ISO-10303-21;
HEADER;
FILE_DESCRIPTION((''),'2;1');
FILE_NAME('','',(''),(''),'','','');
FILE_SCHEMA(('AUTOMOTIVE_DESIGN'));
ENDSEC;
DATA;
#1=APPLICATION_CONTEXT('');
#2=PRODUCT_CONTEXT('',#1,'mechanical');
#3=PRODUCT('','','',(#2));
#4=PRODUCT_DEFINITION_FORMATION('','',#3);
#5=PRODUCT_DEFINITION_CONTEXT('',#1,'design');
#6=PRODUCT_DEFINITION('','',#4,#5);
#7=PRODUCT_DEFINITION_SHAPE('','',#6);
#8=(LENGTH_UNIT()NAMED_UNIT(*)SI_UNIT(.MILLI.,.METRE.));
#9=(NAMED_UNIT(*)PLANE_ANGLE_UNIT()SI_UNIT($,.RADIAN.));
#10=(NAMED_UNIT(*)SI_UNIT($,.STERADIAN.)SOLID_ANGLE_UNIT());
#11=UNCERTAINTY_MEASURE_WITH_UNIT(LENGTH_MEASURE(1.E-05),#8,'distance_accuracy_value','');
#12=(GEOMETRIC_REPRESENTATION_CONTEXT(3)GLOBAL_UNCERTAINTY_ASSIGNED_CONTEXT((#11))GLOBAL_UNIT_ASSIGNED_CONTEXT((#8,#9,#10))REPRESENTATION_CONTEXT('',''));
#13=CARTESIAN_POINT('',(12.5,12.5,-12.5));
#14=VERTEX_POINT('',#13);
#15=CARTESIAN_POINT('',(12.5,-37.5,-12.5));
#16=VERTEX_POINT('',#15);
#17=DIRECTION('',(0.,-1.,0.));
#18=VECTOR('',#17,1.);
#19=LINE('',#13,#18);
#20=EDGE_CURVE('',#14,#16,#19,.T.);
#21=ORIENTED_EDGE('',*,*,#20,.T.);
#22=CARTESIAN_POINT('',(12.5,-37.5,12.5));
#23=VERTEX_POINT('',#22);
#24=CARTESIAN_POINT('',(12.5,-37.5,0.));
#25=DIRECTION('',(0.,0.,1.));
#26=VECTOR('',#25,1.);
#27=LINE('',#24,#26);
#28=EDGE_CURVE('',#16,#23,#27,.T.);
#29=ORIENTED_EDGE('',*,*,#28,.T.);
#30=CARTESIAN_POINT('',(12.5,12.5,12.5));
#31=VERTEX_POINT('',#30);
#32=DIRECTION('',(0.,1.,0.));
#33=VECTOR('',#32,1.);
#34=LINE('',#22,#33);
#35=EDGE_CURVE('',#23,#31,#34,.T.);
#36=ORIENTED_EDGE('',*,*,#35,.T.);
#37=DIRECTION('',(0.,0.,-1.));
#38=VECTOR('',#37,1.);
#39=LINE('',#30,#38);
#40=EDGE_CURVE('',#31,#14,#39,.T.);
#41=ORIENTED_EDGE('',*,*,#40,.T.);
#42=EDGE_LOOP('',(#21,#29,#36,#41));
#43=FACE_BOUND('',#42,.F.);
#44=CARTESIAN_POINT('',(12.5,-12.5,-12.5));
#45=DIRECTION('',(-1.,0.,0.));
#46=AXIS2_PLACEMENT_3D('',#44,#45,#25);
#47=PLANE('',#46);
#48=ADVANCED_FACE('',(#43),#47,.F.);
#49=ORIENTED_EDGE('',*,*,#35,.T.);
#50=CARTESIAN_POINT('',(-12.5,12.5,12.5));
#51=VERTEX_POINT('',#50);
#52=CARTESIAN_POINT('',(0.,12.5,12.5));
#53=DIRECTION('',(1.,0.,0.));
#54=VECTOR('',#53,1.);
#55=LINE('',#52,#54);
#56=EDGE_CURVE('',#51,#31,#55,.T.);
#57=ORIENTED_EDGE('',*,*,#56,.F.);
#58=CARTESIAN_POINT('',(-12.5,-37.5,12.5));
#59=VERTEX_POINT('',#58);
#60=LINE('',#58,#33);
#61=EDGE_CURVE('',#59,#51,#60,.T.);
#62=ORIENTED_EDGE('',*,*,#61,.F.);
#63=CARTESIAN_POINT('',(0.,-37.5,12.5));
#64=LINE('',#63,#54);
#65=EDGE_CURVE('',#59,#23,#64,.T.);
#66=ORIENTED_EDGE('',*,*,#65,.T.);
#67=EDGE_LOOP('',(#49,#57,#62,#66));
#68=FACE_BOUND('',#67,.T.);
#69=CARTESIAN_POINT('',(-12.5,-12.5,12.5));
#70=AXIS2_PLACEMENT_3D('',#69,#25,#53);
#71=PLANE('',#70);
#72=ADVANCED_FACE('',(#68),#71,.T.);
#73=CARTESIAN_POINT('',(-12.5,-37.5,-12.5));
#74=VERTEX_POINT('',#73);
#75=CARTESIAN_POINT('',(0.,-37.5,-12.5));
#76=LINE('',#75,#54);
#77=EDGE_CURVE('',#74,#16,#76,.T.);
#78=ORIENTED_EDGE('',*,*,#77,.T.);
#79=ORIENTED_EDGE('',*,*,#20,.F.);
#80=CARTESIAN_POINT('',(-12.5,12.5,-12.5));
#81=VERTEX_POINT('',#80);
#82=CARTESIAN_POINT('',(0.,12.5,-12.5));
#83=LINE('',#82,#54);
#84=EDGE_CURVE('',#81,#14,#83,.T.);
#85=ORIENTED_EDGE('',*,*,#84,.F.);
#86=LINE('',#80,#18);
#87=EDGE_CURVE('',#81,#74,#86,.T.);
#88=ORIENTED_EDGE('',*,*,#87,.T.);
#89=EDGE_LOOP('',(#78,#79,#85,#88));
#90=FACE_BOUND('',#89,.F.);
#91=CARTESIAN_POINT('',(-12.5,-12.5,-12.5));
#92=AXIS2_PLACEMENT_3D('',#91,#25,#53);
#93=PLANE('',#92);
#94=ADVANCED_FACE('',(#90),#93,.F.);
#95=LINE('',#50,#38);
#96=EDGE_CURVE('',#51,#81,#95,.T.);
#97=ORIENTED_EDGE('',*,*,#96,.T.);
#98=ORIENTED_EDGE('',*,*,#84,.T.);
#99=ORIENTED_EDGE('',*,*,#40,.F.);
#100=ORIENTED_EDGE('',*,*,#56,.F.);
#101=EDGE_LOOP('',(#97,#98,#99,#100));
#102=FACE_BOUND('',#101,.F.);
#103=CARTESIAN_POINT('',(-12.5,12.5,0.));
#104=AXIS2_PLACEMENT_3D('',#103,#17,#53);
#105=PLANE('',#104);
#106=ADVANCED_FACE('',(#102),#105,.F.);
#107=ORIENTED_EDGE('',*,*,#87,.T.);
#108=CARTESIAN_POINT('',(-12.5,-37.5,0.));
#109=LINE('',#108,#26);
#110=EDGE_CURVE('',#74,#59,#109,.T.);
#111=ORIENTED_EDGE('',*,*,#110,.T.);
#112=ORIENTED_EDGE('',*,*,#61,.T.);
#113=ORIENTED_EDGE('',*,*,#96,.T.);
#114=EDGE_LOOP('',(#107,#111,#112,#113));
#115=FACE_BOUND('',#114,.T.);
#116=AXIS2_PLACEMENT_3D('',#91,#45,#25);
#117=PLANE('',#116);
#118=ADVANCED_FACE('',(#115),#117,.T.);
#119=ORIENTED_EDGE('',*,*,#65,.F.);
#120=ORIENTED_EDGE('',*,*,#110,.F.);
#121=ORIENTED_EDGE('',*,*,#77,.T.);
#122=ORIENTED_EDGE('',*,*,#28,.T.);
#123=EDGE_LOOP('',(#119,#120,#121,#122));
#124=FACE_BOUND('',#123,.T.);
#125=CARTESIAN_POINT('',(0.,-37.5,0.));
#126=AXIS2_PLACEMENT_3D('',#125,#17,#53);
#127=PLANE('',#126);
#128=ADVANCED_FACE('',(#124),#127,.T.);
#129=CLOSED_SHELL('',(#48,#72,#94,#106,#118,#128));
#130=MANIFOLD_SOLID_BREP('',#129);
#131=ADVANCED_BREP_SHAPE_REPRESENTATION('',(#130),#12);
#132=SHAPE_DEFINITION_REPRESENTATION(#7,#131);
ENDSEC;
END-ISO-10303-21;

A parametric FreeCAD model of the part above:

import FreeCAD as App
import Part
import Sketcher
from FreeCAD import Vector

doc = App.newDocument("Part")
params = doc.addObject("Spreadsheet::Sheet", "Params")
for row, (alias, value) in enumerate([
    ("sketch1_width", "25 mm"),
    ("pad1_length", "25 mm"),
    ("sketch2_width", "25 mm"),
    ("pad2_length", "25 mm"),
], start=1):
    params.set(f"A{row}", alias)
    params.set(f"B{row}", "=" + value)
    params.setAlias(f"B{row}", alias)

body = doc.addObject("PartDesign::Body", "Body")

# Sketch on XY plane
sketch1 = body.newObject("Sketcher::SketchObject", "Sketch")
sketch1.AttachmentSupport = (doc.getObject("XY_Plane"), [""])
sketch1.MapMode = "FlatFace"
sketch1.addGeometry([
    Part.LineSegment(Vector(-12.5, 12.5, 0), Vector(-12.5, -12.5, 0)),
    Part.LineSegment(Vector(-12.5, -12.5, 0), Vector(12.5, -12.5, 0)),
    Part.LineSegment(Vector(12.5, -12.5, 0), Vector(12.5, 12.5, 0)),
    Part.LineSegment(Vector(12.5, 12.5, 0), Vector(-12.5, 12.5, 0)),
], False)
sketch1.addConstraint([
    Sketcher.Constraint("Coincident", 0, 2, 1, 1),
    Sketcher.Constraint("Coincident", 1, 2, 2, 1),
    Sketcher.Constraint("Coincident", 2, 2, 3, 1),
    Sketcher.Constraint("Coincident", 3, 2, 0, 1),
    Sketcher.Constraint("Vertical", 0),
    Sketcher.Constraint("Horizontal", 1),
    Sketcher.Constraint("Vertical", 2),
    Sketcher.Constraint("Horizontal", 3),
    Sketcher.Constraint("Symmetric", 0, 2, 2, 2, -1, 1),
    Sketcher.Constraint("Equal", 3, 0),
    Sketcher.Constraint("DistanceX", 1, 1, 1, 2, 25.0),
])
sketch1.setExpression("Constraints[10]", "Params.sketch1_width")
pad1 = body.newObject("PartDesign::Pad", "Pad")
pad1.Profile = sketch1
pad1.setExpression("Length", "Params.pad1_length")
pad1.Midplane = True

# Sketch on XZ plane
sketch2 = body.newObject("Sketcher::SketchObject", "Sketch001")
sketch2.AttachmentSupport = (doc.getObject("XZ_Plane"), [""])
sketch2.MapMode = "FlatFace"
sketch2.AttachmentOffset = App.Placement(Vector(0, 0, 12.5), App.Rotation())
sketch2.addGeometry([
    Part.LineSegment(Vector(-12.5, 12.5, 0), Vector(-12.5, -12.5, 0)),
    Part.LineSegment(Vector(-12.5, -12.5, 0), Vector(12.5, -12.5, 0)),
    Part.LineSegment(Vector(12.5, -12.5, 0), Vector(12.5, 12.5, 0)),
    Part.LineSegment(Vector(12.5, 12.5, 0), Vector(-12.5, 12.5, 0)),
], False)
sketch2.addConstraint([
    Sketcher.Constraint("Coincident", 0, 2, 1, 1),
    Sketcher.Constraint("Coincident", 1, 2, 2, 1),
    Sketcher.Constraint("Coincident", 2, 2, 3, 1),
    Sketcher.Constraint("Coincident", 3, 2, 0, 1),
    Sketcher.Constraint("Vertical", 0),
    Sketcher.Constraint("Horizontal", 1),
    Sketcher.Constraint("Vertical", 2),
    Sketcher.Constraint("Horizontal", 3),
    Sketcher.Constraint("Symmetric", 0, 2, 2, 2, -1, 1),
    Sketcher.Constraint("Equal", 3, 0),
    Sketcher.Constraint("DistanceX", 1, 1, 1, 2, 25.0),
])
sketch2.setExpression("Constraints[10]", "Params.sketch2_width")
pad2 = body.newObject("PartDesign::Pad", "Pad001")
pad2.Profile = sketch2
pad2.setExpression("Length", "Params.pad2_length")

doc.recompute()
